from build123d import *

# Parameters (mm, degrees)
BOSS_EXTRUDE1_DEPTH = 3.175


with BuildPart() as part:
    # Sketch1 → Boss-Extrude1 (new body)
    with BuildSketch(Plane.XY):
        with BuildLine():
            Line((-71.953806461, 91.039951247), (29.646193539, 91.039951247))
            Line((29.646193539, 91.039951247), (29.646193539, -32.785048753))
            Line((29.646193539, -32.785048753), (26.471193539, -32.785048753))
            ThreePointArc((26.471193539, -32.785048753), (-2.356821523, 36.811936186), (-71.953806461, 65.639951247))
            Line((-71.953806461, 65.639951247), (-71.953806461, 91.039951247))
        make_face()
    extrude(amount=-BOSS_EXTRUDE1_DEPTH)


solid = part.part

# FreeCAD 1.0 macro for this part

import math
import FreeCAD as App
import Part
import Sketcher

V = App.Vector
Q = App.Units.Quantity

doc = App.newDocument("Part")
body = doc.addObject("PartDesign::Body", "Body")

# Sketch on XY plane
sketch1 = doc.addObject("Sketcher::SketchObject", "Sketch")
body.addObject(sketch1)
sketch1.AttachmentSupport = (doc.XY_Plane, [""])
sketch1.MapMode = "FlatFace"
sketch1.addGeometry(Part.LineSegment(V(29.6, 91, 0), V(-72, 91, 0)), False)
sketch1.addGeometry(Part.LineSegment(V(-72, 91, 0), V(-72, 65.6, 0)), False)
sketch1.addGeometry(Part.ArcOfCircle(Part.Circle(V(-72, -32.8, 0), V(0, 0, 1), 98.4), math.radians(0), math.radians(90)), False)
sketch1.addGeometry(Part.LineSegment(V(26.5, -32.8, 0), V(29.6, -32.8, 0)), False)
sketch1.addGeometry(Part.LineSegment(V(29.6, -32.8, 0), V(29.6, 91, 0)), False)
sketch1.addConstraint(Sketcher.Constraint("Coincident", 0, 2, 1, 1))
sketch1.addConstraint(Sketcher.Constraint("Coincident", 1, 2, 2, 2))
sketch1.addConstraint(Sketcher.Constraint("Coincident", 2, 1, 3, 1))
sketch1.addConstraint(Sketcher.Constraint("Coincident", 3, 2, 4, 1))
sketch1.addConstraint(Sketcher.Constraint("Coincident", 4, 2, 0, 1))
sketch1.addConstraint(Sketcher.Constraint("Horizontal", 0))
sketch1.addConstraint(Sketcher.Constraint("Vertical", 1))
sketch1.addConstraint(Sketcher.Constraint("Horizontal", 3))
sketch1.addConstraint(Sketcher.Constraint("Vertical", 4))
sketch1.addConstraint(Sketcher.Constraint("Vertical", 2, 3, 0, 2))
sketch1.addConstraint(Sketcher.Constraint("DistanceX", 0, 2, 0, 1, Q("4 in")))
sketch1.addConstraint(Sketcher.Constraint("DistanceY", 1, 2, 1, 1, Q("1 in")))
sketch1.addConstraint(Sketcher.Constraint("Radius", 2, Q("3.875 in")))
sketch1.addConstraint(Sketcher.Constraint("DistanceY", 4, 1, 4, 2, Q("4.875 in")))
sketch1.addConstraint(Sketcher.Constraint("DistanceY", 2, 3, -1, 1, 32.785049))
sketch1.addConstraint(Sketcher.Constraint("DistanceX", 2, 3, -1, 1, 71.953806))
pad1 = doc.addObject("PartDesign::Pad", "Pad")
body.addObject(pad1)
pad1.Profile = sketch1
pad1.Length = Q("0.125 in")
pad1.Reversed = True

doc.recompute()
